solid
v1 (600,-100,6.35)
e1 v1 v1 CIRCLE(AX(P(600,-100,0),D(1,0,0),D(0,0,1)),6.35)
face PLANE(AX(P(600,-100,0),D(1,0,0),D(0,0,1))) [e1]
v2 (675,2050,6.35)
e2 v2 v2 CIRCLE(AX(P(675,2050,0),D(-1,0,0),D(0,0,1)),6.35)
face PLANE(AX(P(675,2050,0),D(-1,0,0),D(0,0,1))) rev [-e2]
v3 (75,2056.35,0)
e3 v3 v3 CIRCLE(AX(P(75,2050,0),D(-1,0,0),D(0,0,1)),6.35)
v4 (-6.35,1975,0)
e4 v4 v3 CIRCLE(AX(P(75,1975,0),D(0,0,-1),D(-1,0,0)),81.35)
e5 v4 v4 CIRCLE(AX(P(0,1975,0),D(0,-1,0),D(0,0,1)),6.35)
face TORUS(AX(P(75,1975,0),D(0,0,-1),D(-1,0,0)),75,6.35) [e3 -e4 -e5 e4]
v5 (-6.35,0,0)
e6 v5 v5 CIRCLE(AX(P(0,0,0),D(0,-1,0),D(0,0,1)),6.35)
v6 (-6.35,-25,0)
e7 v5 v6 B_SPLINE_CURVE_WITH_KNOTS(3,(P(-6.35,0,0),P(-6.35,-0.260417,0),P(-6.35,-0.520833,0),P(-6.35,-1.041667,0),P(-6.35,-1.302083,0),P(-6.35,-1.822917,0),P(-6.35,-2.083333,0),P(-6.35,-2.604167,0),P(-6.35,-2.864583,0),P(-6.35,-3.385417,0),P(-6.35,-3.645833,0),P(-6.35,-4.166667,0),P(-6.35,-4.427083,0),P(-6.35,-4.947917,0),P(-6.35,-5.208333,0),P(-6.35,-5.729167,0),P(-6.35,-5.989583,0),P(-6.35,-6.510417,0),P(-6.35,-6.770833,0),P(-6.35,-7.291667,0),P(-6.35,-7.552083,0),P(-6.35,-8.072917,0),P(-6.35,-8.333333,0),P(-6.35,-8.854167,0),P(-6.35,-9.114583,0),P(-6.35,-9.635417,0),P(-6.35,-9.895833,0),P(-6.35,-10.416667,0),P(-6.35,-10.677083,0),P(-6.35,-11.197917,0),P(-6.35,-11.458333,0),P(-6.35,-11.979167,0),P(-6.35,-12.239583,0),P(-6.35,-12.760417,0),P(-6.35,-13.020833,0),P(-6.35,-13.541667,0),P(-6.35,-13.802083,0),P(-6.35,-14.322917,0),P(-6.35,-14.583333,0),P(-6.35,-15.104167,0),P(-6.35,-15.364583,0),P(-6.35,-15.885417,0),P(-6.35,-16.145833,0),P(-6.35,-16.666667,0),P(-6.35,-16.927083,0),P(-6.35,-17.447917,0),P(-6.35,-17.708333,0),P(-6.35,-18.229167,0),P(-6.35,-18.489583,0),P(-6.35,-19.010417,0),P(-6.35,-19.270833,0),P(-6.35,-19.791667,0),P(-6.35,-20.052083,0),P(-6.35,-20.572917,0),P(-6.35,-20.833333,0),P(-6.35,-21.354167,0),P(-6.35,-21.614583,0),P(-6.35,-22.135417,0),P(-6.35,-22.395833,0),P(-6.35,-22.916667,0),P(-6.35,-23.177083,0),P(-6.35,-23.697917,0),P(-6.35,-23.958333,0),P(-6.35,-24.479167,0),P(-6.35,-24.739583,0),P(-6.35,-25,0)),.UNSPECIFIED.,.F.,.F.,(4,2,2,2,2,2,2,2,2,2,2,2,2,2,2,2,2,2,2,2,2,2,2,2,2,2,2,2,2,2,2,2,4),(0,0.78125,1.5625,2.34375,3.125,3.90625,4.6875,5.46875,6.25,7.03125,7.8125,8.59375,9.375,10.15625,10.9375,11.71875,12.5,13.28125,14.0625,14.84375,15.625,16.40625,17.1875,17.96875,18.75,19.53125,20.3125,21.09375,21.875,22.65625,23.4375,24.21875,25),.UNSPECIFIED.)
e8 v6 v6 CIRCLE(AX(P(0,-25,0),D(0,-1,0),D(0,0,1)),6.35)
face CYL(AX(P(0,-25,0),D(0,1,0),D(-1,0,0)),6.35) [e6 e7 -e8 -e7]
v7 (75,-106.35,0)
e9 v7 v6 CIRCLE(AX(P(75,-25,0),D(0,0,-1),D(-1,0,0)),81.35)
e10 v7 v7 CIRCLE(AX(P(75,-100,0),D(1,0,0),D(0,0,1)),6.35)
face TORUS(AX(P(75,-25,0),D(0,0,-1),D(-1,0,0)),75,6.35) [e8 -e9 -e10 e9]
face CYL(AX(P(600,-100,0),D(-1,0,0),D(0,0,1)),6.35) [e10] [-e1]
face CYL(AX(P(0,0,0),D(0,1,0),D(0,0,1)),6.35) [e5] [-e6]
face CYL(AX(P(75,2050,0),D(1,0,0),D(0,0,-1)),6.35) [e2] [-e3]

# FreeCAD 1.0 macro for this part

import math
import FreeCAD as App
import Part
import Sketcher

doc = App.newDocument("Part")
body = doc.addObject("PartDesign::Body", "Body")

sketch1 = body.newObject("Sketcher::SketchObject", "Sketch")
sketch1.AttachmentSupport = (doc.getObject("YZ_Plane"), [""])
sketch1.MapMode = "FlatFace"
sketch1.AttachmentOffset = App.Placement(App.Vector(0, 0, 675), App.Rotation())
sketch1.addGeometry(Part.Circle(App.Vector(2050, 0, 0), App.Vector(0, 0, 1), 6), False)
sketch1.addConstraint(Sketcher.Constraint("PointOnObject", 0, 3, -1))
sketch1.addConstraint(Sketcher.Constraint("Diameter", 0, 12.7))
sketch1.addConstraint(Sketcher.Constraint("DistanceX", -1, 1, 0, 3, 2050.0))

sketch2 = body.newObject("Sketcher::SketchObject", "Sketch001")
sketch2.AttachmentSupport = (doc.getObject("XY_Plane"), [""])
sketch2.MapMode = "FlatFace"
sketch2.addGeometry(Part.LineSegment(App.Vector(675, 2050, 0), App.Vector(75, 2050, 0)), False)
sketch2.addGeometry(Part.ArcOfCircle(Part.Circle(App.Vector(75, 1975, 0), App.Vector(0, 0, 1), 75), math.radians(90), math.radians(180)), False)
sketch2.addGeometry(Part.LineSegment(App.Vector(0, 1975, 0), App.Vector(0, -25, 0)), False)
sketch2.addGeometry(Part.ArcOfCircle(Part.Circle(App.Vector(75, -25, 0), App.Vector(0, 0, 1), 75), math.radians(180), math.radians(270)), False)
sketch2.addGeometry(Part.LineSegment(App.Vector(75, -100, 0), App.Vector(600, -100, 0)), False)
sketch2.addConstraint(Sketcher.Constraint("Tangent", 0, 2, 1, 1))
sketch2.addConstraint(Sketcher.Constraint("Tangent", 1, 2, 2, 1))
sketch2.addConstraint(Sketcher.Constraint("Tangent", 2, 2, 3, 1))
sketch2.addConstraint(Sketcher.Constraint("Tangent", 3, 2, 4, 1))
sketch2.addConstraint(Sketcher.Constraint("Horizontal", 0))
sketch2.addConstraint(Sketcher.Constraint("Vertical", 2))
sketch2.addConstraint(Sketcher.Constraint("Horizontal", 4))
sketch2.addConstraint(Sketcher.Constraint("Equal", 1, 3))
sketch2.addConstraint(Sketcher.Constraint("PointOnObject", 1, 2, -2))
sketch2.addConstraint(Sketcher.Constraint("Radius", 1, 75.0))
sketch2.addConstraint(Sketcher.Constraint("DistanceX", 0, 2, 0, 1, 600.0))
sketch2.addConstraint(Sketcher.Constraint("DistanceX", 4, 1, 4, 2, 525.0))
sketch2.addConstraint(Sketcher.Constraint("DistanceY", 2, 2, 2, 1, 2000.0))
sketch2.addConstraint(Sketcher.Constraint("DistanceY", -1, 1, 1, 3, 1975.0))
doc.recompute()

additivepipe = body.newObject("PartDesign::AdditivePipe", "AdditivePipe")
additivepipe.Profile = sketch1
additivepipe.Spine = (sketch2, ["Edge1", "Edge2", "Edge3", "Edge4", "Edge5"])

doc.recompute()
